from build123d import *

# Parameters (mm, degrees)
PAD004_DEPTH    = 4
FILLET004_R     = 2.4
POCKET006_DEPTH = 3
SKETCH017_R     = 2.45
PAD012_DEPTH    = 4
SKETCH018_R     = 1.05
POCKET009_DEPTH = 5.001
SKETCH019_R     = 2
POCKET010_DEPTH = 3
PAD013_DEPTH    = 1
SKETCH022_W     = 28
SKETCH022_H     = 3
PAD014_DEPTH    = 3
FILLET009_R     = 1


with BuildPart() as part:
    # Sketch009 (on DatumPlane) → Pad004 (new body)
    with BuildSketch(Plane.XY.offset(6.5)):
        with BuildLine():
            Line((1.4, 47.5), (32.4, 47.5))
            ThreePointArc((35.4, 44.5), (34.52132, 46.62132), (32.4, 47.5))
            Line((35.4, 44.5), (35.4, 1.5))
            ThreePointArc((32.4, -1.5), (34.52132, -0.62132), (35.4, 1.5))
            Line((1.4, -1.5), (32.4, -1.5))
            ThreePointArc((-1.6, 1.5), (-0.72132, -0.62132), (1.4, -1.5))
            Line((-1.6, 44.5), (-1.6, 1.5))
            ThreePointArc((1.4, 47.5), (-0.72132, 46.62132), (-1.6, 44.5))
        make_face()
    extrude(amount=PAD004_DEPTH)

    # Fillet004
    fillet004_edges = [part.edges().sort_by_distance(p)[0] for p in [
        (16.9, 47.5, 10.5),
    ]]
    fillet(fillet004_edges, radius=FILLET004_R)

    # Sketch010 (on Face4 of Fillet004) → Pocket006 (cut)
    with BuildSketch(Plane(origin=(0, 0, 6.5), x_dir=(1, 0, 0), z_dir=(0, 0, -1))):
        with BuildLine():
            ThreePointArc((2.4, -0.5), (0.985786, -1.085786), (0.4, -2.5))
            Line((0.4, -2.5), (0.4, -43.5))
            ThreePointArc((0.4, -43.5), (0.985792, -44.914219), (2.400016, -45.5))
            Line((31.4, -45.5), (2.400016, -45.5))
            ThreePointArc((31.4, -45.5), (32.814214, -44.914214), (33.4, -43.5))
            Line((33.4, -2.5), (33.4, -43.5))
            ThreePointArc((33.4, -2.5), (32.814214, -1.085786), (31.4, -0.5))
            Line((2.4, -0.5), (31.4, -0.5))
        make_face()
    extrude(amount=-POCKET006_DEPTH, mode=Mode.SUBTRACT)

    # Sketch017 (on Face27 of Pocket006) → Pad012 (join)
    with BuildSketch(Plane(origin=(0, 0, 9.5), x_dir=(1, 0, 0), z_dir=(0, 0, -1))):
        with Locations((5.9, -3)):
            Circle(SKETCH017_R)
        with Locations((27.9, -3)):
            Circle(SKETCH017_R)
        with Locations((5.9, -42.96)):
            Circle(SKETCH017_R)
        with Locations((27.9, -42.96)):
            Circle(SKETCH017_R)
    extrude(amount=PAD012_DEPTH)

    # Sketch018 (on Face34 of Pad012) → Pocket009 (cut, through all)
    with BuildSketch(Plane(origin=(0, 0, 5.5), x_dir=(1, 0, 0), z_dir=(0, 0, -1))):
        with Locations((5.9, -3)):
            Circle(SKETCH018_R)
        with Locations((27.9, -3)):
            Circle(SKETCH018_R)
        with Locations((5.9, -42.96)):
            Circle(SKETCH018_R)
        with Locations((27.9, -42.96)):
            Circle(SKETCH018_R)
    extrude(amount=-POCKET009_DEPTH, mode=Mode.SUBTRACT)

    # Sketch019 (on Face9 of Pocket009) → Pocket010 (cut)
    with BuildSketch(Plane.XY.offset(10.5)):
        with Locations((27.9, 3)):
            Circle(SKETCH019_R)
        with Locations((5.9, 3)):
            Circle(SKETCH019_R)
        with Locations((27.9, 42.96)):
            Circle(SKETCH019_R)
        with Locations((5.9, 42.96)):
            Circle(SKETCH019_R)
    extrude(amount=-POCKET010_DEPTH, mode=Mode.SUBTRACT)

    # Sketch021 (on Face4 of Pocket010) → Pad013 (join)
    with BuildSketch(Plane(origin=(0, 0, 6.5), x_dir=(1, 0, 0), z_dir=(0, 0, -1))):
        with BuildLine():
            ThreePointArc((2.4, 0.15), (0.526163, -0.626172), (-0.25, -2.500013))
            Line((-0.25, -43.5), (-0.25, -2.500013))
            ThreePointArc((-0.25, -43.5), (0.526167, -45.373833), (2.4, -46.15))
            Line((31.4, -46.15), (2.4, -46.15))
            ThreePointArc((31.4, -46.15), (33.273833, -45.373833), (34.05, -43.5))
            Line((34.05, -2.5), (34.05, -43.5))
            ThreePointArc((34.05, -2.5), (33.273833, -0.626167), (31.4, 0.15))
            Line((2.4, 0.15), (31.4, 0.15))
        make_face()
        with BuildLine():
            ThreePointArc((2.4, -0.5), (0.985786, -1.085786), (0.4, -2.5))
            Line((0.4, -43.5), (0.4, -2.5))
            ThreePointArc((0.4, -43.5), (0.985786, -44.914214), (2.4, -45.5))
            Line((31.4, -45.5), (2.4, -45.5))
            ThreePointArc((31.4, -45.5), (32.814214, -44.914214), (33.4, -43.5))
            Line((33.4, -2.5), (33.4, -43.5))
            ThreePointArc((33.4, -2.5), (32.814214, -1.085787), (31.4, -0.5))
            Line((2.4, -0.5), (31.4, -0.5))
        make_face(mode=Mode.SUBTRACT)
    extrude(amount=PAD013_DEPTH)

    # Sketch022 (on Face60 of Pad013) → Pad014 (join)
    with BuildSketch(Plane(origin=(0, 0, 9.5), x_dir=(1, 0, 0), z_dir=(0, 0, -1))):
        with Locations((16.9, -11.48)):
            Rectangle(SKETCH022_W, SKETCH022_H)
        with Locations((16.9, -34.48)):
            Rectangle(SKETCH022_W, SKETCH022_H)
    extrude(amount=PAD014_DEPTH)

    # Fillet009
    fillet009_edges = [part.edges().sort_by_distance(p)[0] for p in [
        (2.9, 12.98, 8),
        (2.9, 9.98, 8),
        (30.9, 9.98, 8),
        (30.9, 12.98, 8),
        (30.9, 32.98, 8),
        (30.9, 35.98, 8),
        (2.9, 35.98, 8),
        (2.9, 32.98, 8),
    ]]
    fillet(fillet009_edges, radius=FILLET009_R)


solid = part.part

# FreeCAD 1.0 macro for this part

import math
import FreeCAD as App
import Part
import Sketcher


def edges_at(feature, points):
    """Names of the edges that pass closest to the given points."""
    edges = feature.Shape.Edges
    near = lambda p: min(range(len(edges)), key=lambda i: edges[i].distToShape(Part.Vertex(*p))[0])
    return sorted({f"Edge{near(p) + 1}" for p in points})

doc = App.newDocument("Part")
body = doc.addObject("PartDesign::Body", "Body")

# Sketch on XY plane
sketch1 = doc.addObject("Sketcher::SketchObject", "Sketch")
body.addObject(sketch1)
sketch1.AttachmentSupport = (doc.XY_Plane, [""])
sketch1.MapMode = "FlatFace"
sketch1.AttachmentOffset = App.Placement(App.Vector(0, 0, 6.5), App.Rotation())
sketch1.addGeometry([
    Part.LineSegment(App.Vector(32.4, 47.5, 0), App.Vector(1.4, 47.5, 0)),  # 0
    Part.ArcOfCircle(Part.Circle(App.Vector(1.400001, 44.499999, 0), App.Vector(0, 0, 1), 3.000001), math.radians(90.000022), math.radians(179.999978)),  # 1
    Part.LineSegment(App.Vector(-1.6, 44.5, 0), App.Vector(-1.6, 1.5, 0)),  # 2
    Part.ArcOfCircle(Part.Circle(App.Vector(1.400001, 1.500001, 0), App.Vector(0, 0, 1), 3.000001), math.radians(-179.999978), math.radians(-90.000022)),  # 3
    Part.LineSegment(App.Vector(1.4, -1.5, 0), App.Vector(32.4, -1.5, 0)),  # 4
    Part.ArcOfCircle(Part.Circle(App.Vector(32.399999, 1.500001, 0), App.Vector(0, 0, 1), 3.000001), math.radians(-89.999978), math.radians(-0.000022)),  # 5
    Part.LineSegment(App.Vector(35.4, 1.5, 0), App.Vector(35.4, 44.5, 0)),  # 6
    Part.ArcOfCircle(Part.Circle(App.Vector(32.399999, 44.499999, 0), App.Vector(0, 0, 1), 3.000001), math.radians(0.000022), math.radians(89.999978)),  # 7
], False)
sketch1.addConstraint([
    Sketcher.Constraint("Tangent", 0, 2, 1, 1),
    Sketcher.Constraint("Tangent", 1, 2, 2, 1),
    Sketcher.Constraint("Tangent", 2, 2, 3, 1),
    Sketcher.Constraint("Tangent", 3, 2, 4, 1),
    Sketcher.Constraint("Tangent", 4, 2, 5, 1),
    Sketcher.Constraint("Tangent", 5, 2, 6, 1),
    Sketcher.Constraint("Tangent", 6, 2, 7, 1),
    Sketcher.Constraint("Tangent", 7, 2, 0, 1),
    Sketcher.Constraint("Horizontal", 0),
    Sketcher.Constraint("Vertical", 2),
    Sketcher.Constraint("Horizontal", 4),
    Sketcher.Constraint("Vertical", 6),
    Sketcher.Constraint("Equal", 1, 3),
    Sketcher.Constraint("Equal", 3, 5),
    Sketcher.Constraint("Equal", 5, 7),
    Sketcher.Constraint("Radius", 1, 3.000001),
    Sketcher.Constraint("DistanceX", 0, 2, 0, 1, 31.0),
    Sketcher.Constraint("DistanceY", 2, 2, 2, 1, 43.0),
    Sketcher.Constraint("DistanceX", -1, 1, 1, 3, 1.400001),
    Sketcher.Constraint("DistanceY", -1, 1, 1, 3, 44.499999),
])
pad1 = doc.addObject("PartDesign::Pad", "Pad")
body.addObject(pad1)
pad1.Profile = sketch1
pad1.Length = 4
doc.recompute()

fillet = doc.addObject("PartDesign::Fillet", "Fillet")
body.addObject(fillet)
fillet.Base = (pad1, edges_at(pad1, [(16.9, 47.5, 10.5)]))
fillet.Radius = 2.4

# Sketch on XY plane
sketch2 = doc.addObject("Sketcher::SketchObject", "Sketch001")
body.addObject(sketch2)
sketch2.AttachmentSupport = (doc.XY_Plane, [""])
sketch2.MapMode = "FlatFace"
sketch2.AttachmentOffset = App.Placement(App.Vector(0, 0, 6.5), App.Rotation())
sketch2.addGeometry([
    Part.ArcOfCircle(Part.Circle(App.Vector(2.399999, 2.499999, 0), App.Vector(0, 0, 1), 1.999999), math.radians(179.999957), math.radians(270.000043)),  # 0
    Part.LineSegment(App.Vector(0.4, 2.5, 0), App.Vector(0.4, 43.5, 0)),  # 1
    Part.ArcOfCircle(Part.Circle(App.Vector(2.4, 43.5, 0), App.Vector(0, 0, 1), 2), math.radians(89.999548), math.radians(179.999994)),  # 2
    Part.LineSegment(App.Vector(2.400016, 45.5, 0), App.Vector(31.4, 45.5, 0)),  # 3
    Part.ArcOfCircle(Part.Circle(App.Vector(31.400001, 43.500001, 0), App.Vector(0, 0, 1), 1.999999), math.radians(-0.000043), math.radians(90.000043)),  # 4
    Part.LineSegment(App.Vector(33.4, 43.5, 0), App.Vector(33.4, 2.5, 0)),  # 5
    Part.ArcOfCircle(Part.Circle(App.Vector(31.400001, 2.499999, 0), App.Vector(0, 0, 1), 1.999999), math.radians(-90.000043), math.radians(0.000043)),  # 6
    Part.LineSegment(App.Vector(31.4, 0.5, 0), App.Vector(2.4, 0.5, 0)),  # 7
], False)
sketch2.addConstraint([
    Sketcher.Constraint("Tangent", 0, 1, 1, 1),
    Sketcher.Constraint("Tangent", 1, 2, 2, 2),
    Sketcher.Constraint("Coincident", 2, 1, 3, 1),
    Sketcher.Constraint("Tangent", 3, 2, 4, 2),
    Sketcher.Constraint("Tangent", 4, 1, 5, 1),
    Sketcher.Constraint("Tangent", 5, 2, 6, 2),
    Sketcher.Constraint("Tangent", 6, 1, 7, 1),
    Sketcher.Constraint("Tangent", 7, 2, 0, 2),
    Sketcher.Constraint("Vertical", 1),
    Sketcher.Constraint("Horizontal", 3),
    Sketcher.Constraint("Vertical", 5),
    Sketcher.Constraint("Horizontal", 7),
    Sketcher.Constraint("Equal", 0, 2),
    Sketcher.Constraint("Equal", 2, 4),
    Sketcher.Constraint("Equal", 4, 6),
    Sketcher.Constraint("Radius", 0, 1.999999),
    Sketcher.Constraint("DistanceX", 7, 2, 7, 1, 29.0),
    Sketcher.Constraint("DistanceY", 1, 1, 1, 2, 41.0),
    Sketcher.Constraint("DistanceX", -1, 1, 0, 3, 2.399999),
    Sketcher.Constraint("DistanceY", -1, 1, 0, 3, 2.499999),
    Sketcher.Constraint("DistanceX", 3, 1, 3, 2, 28.999984),
])
pocket1 = doc.addObject("PartDesign::Pocket", "Pocket")
body.addObject(pocket1)
pocket1.Profile = sketch2
pocket1.Length = 3
pocket1.Reversed = True

# Sketch on XY plane
sketch3 = doc.addObject("Sketcher::SketchObject", "Sketch002")
body.addObject(sketch3)
sketch3.AttachmentSupport = (doc.XY_Plane, [""])
sketch3.MapMode = "FlatFace"
sketch3.AttachmentOffset = App.Placement(App.Vector(0, 0, 9.5), App.Rotation())
sketch3.addGeometry([
    Part.Circle(App.Vector(5.9, 3, 0), App.Vector(0, 0, 1), 2.45),
    Part.Circle(App.Vector(27.9, 3, 0), App.Vector(0, 0, 1), 2.45),
    Part.Circle(App.Vector(5.9, 42.96, 0), App.Vector(0, 0, 1), 2.45),
    Part.Circle(App.Vector(27.9, 42.96, 0), App.Vector(0, 0, 1), 2.45),
], False)
sketch3.addConstraint([
    Sketcher.Constraint("Equal", 0, 1),
    Sketcher.Constraint("Equal", 1, 2),
    Sketcher.Constraint("Equal", 2, 3),
    Sketcher.Constraint("Horizontal", 0, 3, 1, 3),
    Sketcher.Constraint("Horizontal", 2, 3, 3, 3),
    Sketcher.Constraint("Vertical", 0, 3, 2, 3),
    Sketcher.Constraint("Vertical", 1, 3, 3, 3),
    Sketcher.Constraint("Diameter", 0, 4.9),
    Sketcher.Constraint("DistanceY", -1, 1, 0, 3, 3.0),
    Sketcher.Constraint("DistanceX", 0, 3, 1, 3, 22.0),
    Sketcher.Constraint("DistanceX", -1, 1, 0, 3, 5.9),
    Sketcher.Constraint("DistanceY", -1, 1, 2, 3, 42.96),
])
pad2 = doc.addObject("PartDesign::Pad", "Pad001")
body.addObject(pad2)
pad2.Profile = sketch3
pad2.Length = 4
pad2.Reversed = True

# Sketch on XY plane
sketch4 = doc.addObject("Sketcher::SketchObject", "Sketch003")
body.addObject(sketch4)
sketch4.AttachmentSupport = (doc.XY_Plane, [""])
sketch4.MapMode = "FlatFace"
sketch4.AttachmentOffset = App.Placement(App.Vector(0, 0, 5.5), App.Rotation())
sketch4.addGeometry([
    Part.Circle(App.Vector(5.9, 3, 0), App.Vector(0, 0, 1), 1.05),
    Part.Circle(App.Vector(27.9, 3, 0), App.Vector(0, 0, 1), 1.05),
    Part.Circle(App.Vector(5.9, 42.96, 0), App.Vector(0, 0, 1), 1.05),
    Part.Circle(App.Vector(27.9, 42.96, 0), App.Vector(0, 0, 1), 1.05),
], False)
sketch4.addConstraint([
    Sketcher.Constraint("Equal", 0, 1),
    Sketcher.Constraint("Equal", 1, 2),
    Sketcher.Constraint("Equal", 2, 3),
    Sketcher.Constraint("Horizontal", 0, 3, 1, 3),
    Sketcher.Constraint("Horizontal", 2, 3, 3, 3),
    Sketcher.Constraint("Vertical", 0, 3, 2, 3),
    Sketcher.Constraint("Vertical", 1, 3, 3, 3),
    Sketcher.Constraint("Diameter", 0, 2.1),
    Sketcher.Constraint("DistanceY", -1, 1, 0, 3, 3.0),
    Sketcher.Constraint("DistanceX", 0, 3, 1, 3, 22.0),
    Sketcher.Constraint("DistanceX", -1, 1, 0, 3, 5.9),
    Sketcher.Constraint("DistanceY", -1, 1, 2, 3, 42.96),
])
pocket2 = doc.addObject("PartDesign::Pocket", "Pocket001")
body.addObject(pocket2)
pocket2.Profile = sketch4
pocket2.Type = "ThroughAll"
pocket2.Reversed = True

# Sketch on XY plane
sketch5 = doc.addObject("Sketcher::SketchObject", "Sketch004")
body.addObject(sketch5)
sketch5.AttachmentSupport = (doc.XY_Plane, [""])
sketch5.MapMode = "FlatFace"
sketch5.AttachmentOffset = App.Placement(App.Vector(0, 0, 10.5), App.Rotation())
sketch5.addGeometry([
    Part.Circle(App.Vector(27.9, 3, 0), App.Vector(0, 0, 1), 2),
    Part.Circle(App.Vector(5.9, 3, 0), App.Vector(0, 0, 1), 2),
    Part.Circle(App.Vector(27.9, 42.96, 0), App.Vector(0, 0, 1), 2),
    Part.Circle(App.Vector(5.9, 42.96, 0), App.Vector(0, 0, 1), 2),
], False)
sketch5.addConstraint([
    Sketcher.Constraint("Equal", 0, 1),
    Sketcher.Constraint("Equal", 1, 2),
    Sketcher.Constraint("Equal", 2, 3),
    Sketcher.Constraint("Horizontal", 0, 3, 1, 3),
    Sketcher.Constraint("Horizontal", 2, 3, 3, 3),
    Sketcher.Constraint("Vertical", 0, 3, 2, 3),
    Sketcher.Constraint("Vertical", 1, 3, 3, 3),
    Sketcher.Constraint("Diameter", 0, 4.0),
    Sketcher.Constraint("DistanceY", -1, 1, 0, 3, 3.0),
    Sketcher.Constraint("DistanceX", 1, 3, 0, 3, 22.0),
    Sketcher.Constraint("DistanceX", -1, 1, 0, 3, 27.9),
    Sketcher.Constraint("DistanceY", -1, 1, 2, 3, 42.96),
])
pocket3 = doc.addObject("PartDesign::Pocket", "Pocket002")
body.addObject(pocket3)
pocket3.Profile = sketch5
pocket3.Length = 3

# Sketch on XY plane
sketch6 = doc.addObject("Sketcher::SketchObject", "Sketch005")
body.addObject(sketch6)
sketch6.AttachmentSupport = (doc.XY_Plane, [""])
sketch6.MapMode = "FlatFace"
sketch6.AttachmentOffset = App.Placement(App.Vector(0, 0, 6.5), App.Rotation())
sketch6.addGeometry([
    Part.ArcOfCircle(Part.Circle(App.Vector(2.400002, 2.500002, 0), App.Vector(0, 0, 1), 2.650002), math.radians(179.999754), math.radians(269.999965)),  # 0
    Part.LineSegment(App.Vector(-0.25, 2.500013, 0), App.Vector(-0.25, 43.5, 0)),  # 1
    Part.ArcOfCircle(Part.Circle(App.Vector(2.4, 43.5, 0), App.Vector(0, 0, 1), 2.65), math.radians(89.999998), math.radians(180.000002)),  # 2
    Part.LineSegment(App.Vector(2.4, 46.15, 0), App.Vector(31.4, 46.15, 0)),  # 3
    Part.ArcOfCircle(Part.Circle(App.Vector(31.4, 43.5, 0), App.Vector(0, 0, 1), 2.65), math.radians(-0.000002), math.radians(90.000002)),  # 4
    Part.LineSegment(App.Vector(34.05, 43.5, 0), App.Vector(34.05, 2.5, 0)),  # 5
    Part.ArcOfCircle(Part.Circle(App.Vector(31.4, 2.5, 0), App.Vector(0, 0, 1), 2.65), math.radians(-90.000002), math.radians(0.000002)),  # 6
    Part.LineSegment(App.Vector(31.4, -0.15, 0), App.Vector(2.4, -0.15, 0)),  # 7
    Part.ArcOfCircle(Part.Circle(App.Vector(2.399999, 2.499999, 0), App.Vector(0, 0, 1), 1.999999), math.radians(179.999957), math.radians(270.000043)),  # 8
    Part.LineSegment(App.Vector(2.4, 0.5, 0), App.Vector(31.4, 0.5, 0)),  # 9
    Part.ArcOfCircle(Part.Circle(App.Vector(31.4, 2.5, 0), App.Vector(0, 0, 1), 2), math.radians(-89.999994), math.radians(-0.000006)),  # 10
    Part.LineSegment(App.Vector(33.4, 2.5, 0), App.Vector(33.4, 43.5, 0)),  # 11
    Part.ArcOfCircle(Part.Circle(App.Vector(31.400001, 43.500001, 0), App.Vector(0, 0, 1), 1.999999), math.radians(-0.000043), math.radians(90.000043)),  # 12
    Part.LineSegment(App.Vector(31.4, 45.5, 0), App.Vector(2.4, 45.5, 0)),  # 13
    Part.ArcOfCircle(Part.Circle(App.Vector(2.399999, 43.500001, 0), App.Vector(0, 0, 1), 1.999999), math.radians(89.999957), math.radians(180.000043)),  # 14
    Part.LineSegment(App.Vector(0.4, 43.5, 0), App.Vector(0.4, 2.5, 0)),  # 15
], False)
sketch6.addConstraint([
    Sketcher.Constraint("Coincident", 0, 1, 1, 1),
    Sketcher.Constraint("Tangent", 1, 2, 2, 2),
    Sketcher.Constraint("Tangent", 2, 1, 3, 1),
    Sketcher.Constraint("Tangent", 3, 2, 4, 2),
    Sketcher.Constraint("Tangent", 4, 1, 5, 1),
    Sketcher.Constraint("Tangent", 5, 2, 6, 2),
    Sketcher.Constraint("Tangent", 6, 1, 7, 1),
    Sketcher.Constraint("Tangent", 7, 2, 0, 2),
    Sketcher.Constraint("Tangent", 8, 2, 9, 1),
    Sketcher.Constraint("Tangent", 9, 2, 10, 1),
    Sketcher.Constraint("Tangent", 10, 2, 11, 1),
    Sketcher.Constraint("Tangent", 11, 2, 12, 1),
    Sketcher.Constraint("Tangent", 12, 2, 13, 1),
    Sketcher.Constraint("Tangent", 13, 2, 14, 1),
    Sketcher.Constraint("Tangent", 14, 2, 15, 1),
    Sketcher.Constraint("Tangent", 15, 2, 8, 1),
    Sketcher.Constraint("Vertical", 1),
    Sketcher.Constraint("Horizontal", 3),
    Sketcher.Constraint("Vertical", 5),
    Sketcher.Constraint("Horizontal", 7),
    Sketcher.Constraint("Horizontal", 9),
    Sketcher.Constraint("Vertical", 11),
    Sketcher.Constraint("Horizontal", 13),
    Sketcher.Constraint("Vertical", 15),
    Sketcher.Constraint("Coincident", 8, 3, 0, 3),
    Sketcher.Constraint("Coincident", 10, 3, 6, 3),
    Sketcher.Constraint("Coincident", 12, 3, 4, 3),
    Sketcher.Constraint("Equal", 0, 2),
    Sketcher.Constraint("Equal", 2, 4),
    Sketcher.Constraint("Equal", 4, 6),
    Sketcher.Constraint("Equal", 12, 14),
    Sketcher.Constraint("Radius", 8, 1.999999),
    Sketcher.Constraint("DistanceX", 3, 1, 3, 2, 29.0),
    Sketcher.Constraint("DistanceY", 5, 2, 5, 1, 41.0),
    Sketcher.Constraint("Radius", 0, 2.650002),
    Sketcher.Constraint("DistanceX", -1, 1, 0, 3, 2.400002),
    Sketcher.Constraint("DistanceY", -1, 1, 0, 3, 2.500002),
    Sketcher.Constraint("DistanceY", 1, 1, 1, 2, 40.999987),
])
pad3 = doc.addObject("PartDesign::Pad", "Pad002")
body.addObject(pad3)
pad3.Profile = sketch6
pad3.Length = 1
pad3.Reversed = True

# Sketch on XY plane
sketch7 = doc.addObject("Sketcher::SketchObject", "Sketch006")
body.addObject(sketch7)
sketch7.AttachmentSupport = (doc.XY_Plane, [""])
sketch7.MapMode = "FlatFace"
sketch7.AttachmentOffset = App.Placement(App.Vector(0, 0, 9.5), App.Rotation())
sketch7.addGeometry([
    Part.LineSegment(App.Vector(2.9, 9.98, 0), App.Vector(2.9, 12.98, 0)),  # 0
    Part.LineSegment(App.Vector(2.9, 12.98, 0), App.Vector(30.9, 12.98, 0)),  # 1
    Part.LineSegment(App.Vector(30.9, 12.98, 0), App.Vector(30.9, 9.98, 0)),  # 2
    Part.LineSegment(App.Vector(30.9, 9.98, 0), App.Vector(2.9, 9.98, 0)),  # 3
    Part.LineSegment(App.Vector(2.9, 32.98, 0), App.Vector(2.9, 35.98, 0)),  # 4
    Part.LineSegment(App.Vector(2.9, 35.98, 0), App.Vector(30.9, 35.98, 0)),  # 5
    Part.LineSegment(App.Vector(30.9, 35.98, 0), App.Vector(30.9, 32.98, 0)),  # 6
    Part.LineSegment(App.Vector(30.9, 32.98, 0), App.Vector(2.9, 32.98, 0)),  # 7
], False)
sketch7.addConstraint([
    Sketcher.Constraint("Coincident", 0, 2, 1, 1),
    Sketcher.Constraint("Coincident", 1, 2, 2, 1),
    Sketcher.Constraint("Coincident", 2, 2, 3, 1),
    Sketcher.Constraint("Coincident", 3, 2, 0, 1),
    Sketcher.Constraint("Coincident", 4, 2, 5, 1),
    Sketcher.Constraint("Coincident", 5, 2, 6, 1),
    Sketcher.Constraint("Coincident", 6, 2, 7, 1),
    Sketcher.Constraint("Coincident", 7, 2, 4, 1),
    Sketcher.Constraint("Vertical", 0),
    Sketcher.Constraint("Horizontal", 1),
    Sketcher.Constraint("Vertical", 2),
    Sketcher.Constraint("Horizontal", 3),
    Sketcher.Constraint("Vertical", 4),
    Sketcher.Constraint("Horizontal", 5),
    Sketcher.Constraint("Vertical", 6),
    Sketcher.Constraint("Horizontal", 7),
    Sketcher.Constraint("Vertical", 3, 2, 4, 2),
    Sketcher.Constraint("Vertical", 2, 2, 5, 2),
    Sketcher.Constraint("Equal", 2, 4),
    Sketcher.Constraint("DistanceX", 1, 1, 1, 2, 28.0),
    Sketcher.Constraint("DistanceY", 0, 1, 0, 2, 3.0),
    Sketcher.Constraint("DistanceY", 0, 2, 4, 2, 23.0),
    Sketcher.Constraint("DistanceX", -1, 1, 0, 2, 2.9),
    Sketcher.Constraint("DistanceY", -1, 1, 0, 2, 12.98),
])
pad4 = doc.addObject("PartDesign::Pad", "Pad003")
body.addObject(pad4)
pad4.Profile = sketch7
pad4.Length = 3
pad4.Reversed = True
doc.recompute()

fillet2 = doc.addObject("PartDesign::Fillet", "Fillet001")
body.addObject(fillet2)
fillet2.Base = (pad4, edges_at(pad4, [
    (2.9, 12.98, 8),
    (2.9, 9.98, 8),
    (30.9, 9.98, 8),
    (30.9, 12.98, 8),
    (30.9, 32.98, 8),
    (30.9, 35.98, 8),
    (2.9, 35.98, 8),
    (2.9, 32.98, 8),
]))
fillet2.Radius = 1

doc.recompute()
